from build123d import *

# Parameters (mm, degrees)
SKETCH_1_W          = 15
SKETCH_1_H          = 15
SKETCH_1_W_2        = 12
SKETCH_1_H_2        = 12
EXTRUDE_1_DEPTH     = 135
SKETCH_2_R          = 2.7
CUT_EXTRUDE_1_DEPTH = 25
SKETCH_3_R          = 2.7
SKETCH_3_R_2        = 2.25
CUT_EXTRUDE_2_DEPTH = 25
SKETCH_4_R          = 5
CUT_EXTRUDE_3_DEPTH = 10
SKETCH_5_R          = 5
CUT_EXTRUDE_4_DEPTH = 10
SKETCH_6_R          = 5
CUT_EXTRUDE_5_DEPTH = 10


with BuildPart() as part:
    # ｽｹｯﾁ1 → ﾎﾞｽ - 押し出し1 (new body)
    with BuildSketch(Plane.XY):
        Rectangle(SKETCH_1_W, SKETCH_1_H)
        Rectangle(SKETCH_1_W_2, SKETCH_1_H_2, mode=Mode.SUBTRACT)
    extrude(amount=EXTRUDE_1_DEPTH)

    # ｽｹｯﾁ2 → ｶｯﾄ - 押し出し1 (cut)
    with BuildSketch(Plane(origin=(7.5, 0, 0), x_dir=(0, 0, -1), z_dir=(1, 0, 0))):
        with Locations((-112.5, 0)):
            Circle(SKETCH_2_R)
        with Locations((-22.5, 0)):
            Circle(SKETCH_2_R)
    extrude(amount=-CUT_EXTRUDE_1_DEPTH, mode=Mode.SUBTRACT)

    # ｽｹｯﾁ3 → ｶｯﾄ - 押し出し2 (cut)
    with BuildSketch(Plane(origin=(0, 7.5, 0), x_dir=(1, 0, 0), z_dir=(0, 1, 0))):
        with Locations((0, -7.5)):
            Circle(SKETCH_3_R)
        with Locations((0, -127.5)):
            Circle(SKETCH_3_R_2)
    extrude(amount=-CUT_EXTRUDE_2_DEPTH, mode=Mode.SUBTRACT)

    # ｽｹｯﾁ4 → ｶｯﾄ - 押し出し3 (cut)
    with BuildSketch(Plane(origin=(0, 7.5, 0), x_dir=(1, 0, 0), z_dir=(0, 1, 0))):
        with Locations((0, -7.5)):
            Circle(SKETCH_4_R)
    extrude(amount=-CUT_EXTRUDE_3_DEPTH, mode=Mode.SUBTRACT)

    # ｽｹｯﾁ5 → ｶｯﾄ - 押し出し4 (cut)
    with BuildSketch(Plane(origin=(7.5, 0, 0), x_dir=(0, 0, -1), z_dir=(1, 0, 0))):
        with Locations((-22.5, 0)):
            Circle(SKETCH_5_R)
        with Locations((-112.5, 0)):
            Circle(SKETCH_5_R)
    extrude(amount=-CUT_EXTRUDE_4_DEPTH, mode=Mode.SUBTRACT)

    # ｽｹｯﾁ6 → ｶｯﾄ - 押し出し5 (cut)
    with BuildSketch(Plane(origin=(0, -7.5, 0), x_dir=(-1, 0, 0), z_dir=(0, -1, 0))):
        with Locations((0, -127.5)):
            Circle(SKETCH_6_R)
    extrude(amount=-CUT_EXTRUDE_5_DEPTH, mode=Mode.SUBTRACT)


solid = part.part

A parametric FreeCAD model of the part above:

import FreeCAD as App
import Part
import Sketcher


def add_polygon(sketch, points):
    """Adds a closed chain of lines whose ends are joined by coincident constraints."""
    first, n = sketch.GeometryCount, len(points)
    for a, b in zip(points, points[1:] + points[:1]):
        sketch.addGeometry(Part.LineSegment(App.Vector(*a, 0), App.Vector(*b, 0)), False)
    for i in range(n):
        sketch.addConstraint(Sketcher.Constraint("Coincident", first + i, 2, first + (i + 1) % n, 1))

doc = App.newDocument("Part")
body = doc.addObject("PartDesign::Body", "Body")

sketch1 = body.newObject("Sketcher::SketchObject", "Sketch")
sketch1.AttachmentSupport = (doc.getObject("XY_Plane"), [""])
sketch1.MapMode = "FlatFace"
add_polygon(sketch1, [(-7.5, 7.5), (-7.5, -7.5), (7.5, -7.5), (7.5, 7.5)])
add_polygon(sketch1, [(6, -6), (-6, -6), (-6, 6), (6, 6)])
sketch1.addConstraint(Sketcher.Constraint("Vertical", 0))
sketch1.addConstraint(Sketcher.Constraint("Horizontal", 1))
sketch1.addConstraint(Sketcher.Constraint("Vertical", 2))
sketch1.addConstraint(Sketcher.Constraint("Horizontal", 3))
sketch1.addConstraint(Sketcher.Constraint("Horizontal", 4))
sketch1.addConstraint(Sketcher.Constraint("Vertical", 5))
sketch1.addConstraint(Sketcher.Constraint("Horizontal", 6))
sketch1.addConstraint(Sketcher.Constraint("Vertical", 7))
sketch1.addConstraint(Sketcher.Constraint("Symmetric", 0, 2, 2, 2, -1, 1))
sketch1.addConstraint(Sketcher.Constraint("Symmetric", 4, 2, 6, 2, -1, 1))
sketch1.addConstraint(Sketcher.Constraint("Equal", 3, 0))
sketch1.addConstraint(Sketcher.Constraint("Equal", 6, 5))
sketch1.addConstraint(Sketcher.Constraint("DistanceX", 1, 1, 1, 2, 15.0))
sketch1.addConstraint(Sketcher.Constraint("DistanceX", 4, 2, 4, 1, 12.0))
pad1 = body.newObject("PartDesign::Pad", "Pad")
pad1.Profile = sketch1
pad1.Length = 135

sketch2 = body.newObject("Sketcher::SketchObject", "Sketch001")
sketch2.AttachmentSupport = (doc.getObject("YZ_Plane"), [""])
sketch2.MapMode = "FlatFace"
sketch2.AttachmentOffset = App.Placement(App.Vector(0, 0, 7.5), App.Rotation())
sketch2.addGeometry(Part.Circle(App.Vector(0, 112.5, 0), App.Vector(0, 0, 1), 2.7), False)
sketch2.addGeometry(Part.Circle(App.Vector(0, 22.5, 0), App.Vector(0, 0, 1), 2.7), False)
sketch2.addConstraint(Sketcher.Constraint("Equal", 0, 1))
sketch2.addConstraint(Sketcher.Constraint("PointOnObject", 0, 3, -2))
sketch2.addConstraint(Sketcher.Constraint("PointOnObject", 1, 3, -2))
sketch2.addConstraint(Sketcher.Constraint("Diameter", 0, 5.4))
sketch2.addConstraint(Sketcher.Constraint("DistanceY", 1, 3, 0, 3, 90.0))
sketch2.addConstraint(Sketcher.Constraint("DistanceY", -1, 1, 0, 3, 112.5))
pocket1 = body.newObject("PartDesign::Pocket", "Pocket")
pocket1.Profile = sketch2
pocket1.Length = 25

sketch3 = body.newObject("Sketcher::SketchObject", "Sketch002")
sketch3.AttachmentSupport = (doc.getObject("XZ_Plane"), [""])
sketch3.MapMode = "FlatFace"
sketch3.AttachmentOffset = App.Placement(App.Vector(0, 0, -7.5), App.Rotation())
sketch3.addGeometry(Part.Circle(App.Vector(0, 7.5, 0), App.Vector(0, 0, 1), 2.7), False)
sketch3.addGeometry(Part.Circle(App.Vector(0, 127.5, 0), App.Vector(0, 0, 1), 2.25), False)
sketch3.addConstraint(Sketcher.Constraint("PointOnObject", 0, 3, -2))
sketch3.addConstraint(Sketcher.Constraint("PointOnObject", 1, 3, -2))
sketch3.addConstraint(Sketcher.Constraint("Diameter", 0, 5.4))
sketch3.addConstraint(Sketcher.Constraint("Diameter", 1, 4.5))
sketch3.addConstraint(Sketcher.Constraint("DistanceY", 0, 3, 1, 3, 120.0))
sketch3.addConstraint(Sketcher.Constraint("DistanceY", -1, 1, 0, 3, 7.5))
pocket2 = body.newObject("PartDesign::Pocket", "Pocket001")
pocket2.Profile = sketch3
pocket2.Length = 25
pocket2.Reversed = True

sketch4 = body.newObject("Sketcher::SketchObject", "Sketch003")
sketch4.AttachmentSupport = (doc.getObject("XZ_Plane"), [""])
sketch4.MapMode = "FlatFace"
sketch4.AttachmentOffset = App.Placement(App.Vector(0, 0, -7.5), App.Rotation())
sketch4.addGeometry(Part.Circle(App.Vector(0, 7.5, 0), App.Vector(0, 0, 1), 5), False)
sketch4.addConstraint(Sketcher.Constraint("PointOnObject", 0, 3, -2))
sketch4.addConstraint(Sketcher.Constraint("Diameter", 0, 10.0))
sketch4.addConstraint(Sketcher.Constraint("DistanceY", -1, 1, 0, 3, 7.5))
pocket3 = body.newObject("PartDesign::Pocket", "Pocket002")
pocket3.Profile = sketch4
pocket3.Length = 10
pocket3.Reversed = True

sketch5 = body.newObject("Sketcher::SketchObject", "Sketch004")
sketch5.AttachmentSupport = (doc.getObject("YZ_Plane"), [""])
sketch5.MapMode = "FlatFace"
sketch5.AttachmentOffset = App.Placement(App.Vector(0, 0, 7.5), App.Rotation())
sketch5.addGeometry(Part.Circle(App.Vector(0, 22.5, 0), App.Vector(0, 0, 1), 5), False)
sketch5.addGeometry(Part.Circle(App.Vector(0, 112.5, 0), App.Vector(0, 0, 1), 5), False)
sketch5.addConstraint(Sketcher.Constraint("Equal", 0, 1))
sketch5.addConstraint(Sketcher.Constraint("PointOnObject", 0, 3, -2))
sketch5.addConstraint(Sketcher.Constraint("PointOnObject", 1, 3, -2))
sketch5.addConstraint(Sketcher.Constraint("Diameter", 0, 10.0))
sketch5.addConstraint(Sketcher.Constraint("DistanceY", 0, 3, 1, 3, 90.0))
sketch5.addConstraint(Sketcher.Constraint("DistanceY", -1, 1, 0, 3, 22.5))
pocket4 = body.newObject("PartDesign::Pocket", "Pocket003")
pocket4.Profile = sketch5
pocket4.Length = 10

sketch6 = body.newObject("Sketcher::SketchObject", "Sketch005")
sketch6.AttachmentSupport = (doc.getObject("XZ_Plane"), [""])
sketch6.MapMode = "FlatFace"
sketch6.AttachmentOffset = App.Placement(App.Vector(0, 0, 7.5), App.Rotation())
sketch6.addGeometry(Part.Circle(App.Vector(0, 127.5, 0), App.Vector(0, 0, 1), 5), False)
sketch6.addConstraint(Sketcher.Constraint("PointOnObject", 0, 3, -2))
sketch6.addConstraint(Sketcher.Constraint("Diameter", 0, 10.0))
sketch6.addConstraint(Sketcher.Constraint("DistanceY", -1, 1, 0, 3, 127.5))
pocket5 = body.newObject("PartDesign::Pocket", "Pocket004")
pocket5.Profile = sketch6
pocket5.Length = 10

doc.recompute()
